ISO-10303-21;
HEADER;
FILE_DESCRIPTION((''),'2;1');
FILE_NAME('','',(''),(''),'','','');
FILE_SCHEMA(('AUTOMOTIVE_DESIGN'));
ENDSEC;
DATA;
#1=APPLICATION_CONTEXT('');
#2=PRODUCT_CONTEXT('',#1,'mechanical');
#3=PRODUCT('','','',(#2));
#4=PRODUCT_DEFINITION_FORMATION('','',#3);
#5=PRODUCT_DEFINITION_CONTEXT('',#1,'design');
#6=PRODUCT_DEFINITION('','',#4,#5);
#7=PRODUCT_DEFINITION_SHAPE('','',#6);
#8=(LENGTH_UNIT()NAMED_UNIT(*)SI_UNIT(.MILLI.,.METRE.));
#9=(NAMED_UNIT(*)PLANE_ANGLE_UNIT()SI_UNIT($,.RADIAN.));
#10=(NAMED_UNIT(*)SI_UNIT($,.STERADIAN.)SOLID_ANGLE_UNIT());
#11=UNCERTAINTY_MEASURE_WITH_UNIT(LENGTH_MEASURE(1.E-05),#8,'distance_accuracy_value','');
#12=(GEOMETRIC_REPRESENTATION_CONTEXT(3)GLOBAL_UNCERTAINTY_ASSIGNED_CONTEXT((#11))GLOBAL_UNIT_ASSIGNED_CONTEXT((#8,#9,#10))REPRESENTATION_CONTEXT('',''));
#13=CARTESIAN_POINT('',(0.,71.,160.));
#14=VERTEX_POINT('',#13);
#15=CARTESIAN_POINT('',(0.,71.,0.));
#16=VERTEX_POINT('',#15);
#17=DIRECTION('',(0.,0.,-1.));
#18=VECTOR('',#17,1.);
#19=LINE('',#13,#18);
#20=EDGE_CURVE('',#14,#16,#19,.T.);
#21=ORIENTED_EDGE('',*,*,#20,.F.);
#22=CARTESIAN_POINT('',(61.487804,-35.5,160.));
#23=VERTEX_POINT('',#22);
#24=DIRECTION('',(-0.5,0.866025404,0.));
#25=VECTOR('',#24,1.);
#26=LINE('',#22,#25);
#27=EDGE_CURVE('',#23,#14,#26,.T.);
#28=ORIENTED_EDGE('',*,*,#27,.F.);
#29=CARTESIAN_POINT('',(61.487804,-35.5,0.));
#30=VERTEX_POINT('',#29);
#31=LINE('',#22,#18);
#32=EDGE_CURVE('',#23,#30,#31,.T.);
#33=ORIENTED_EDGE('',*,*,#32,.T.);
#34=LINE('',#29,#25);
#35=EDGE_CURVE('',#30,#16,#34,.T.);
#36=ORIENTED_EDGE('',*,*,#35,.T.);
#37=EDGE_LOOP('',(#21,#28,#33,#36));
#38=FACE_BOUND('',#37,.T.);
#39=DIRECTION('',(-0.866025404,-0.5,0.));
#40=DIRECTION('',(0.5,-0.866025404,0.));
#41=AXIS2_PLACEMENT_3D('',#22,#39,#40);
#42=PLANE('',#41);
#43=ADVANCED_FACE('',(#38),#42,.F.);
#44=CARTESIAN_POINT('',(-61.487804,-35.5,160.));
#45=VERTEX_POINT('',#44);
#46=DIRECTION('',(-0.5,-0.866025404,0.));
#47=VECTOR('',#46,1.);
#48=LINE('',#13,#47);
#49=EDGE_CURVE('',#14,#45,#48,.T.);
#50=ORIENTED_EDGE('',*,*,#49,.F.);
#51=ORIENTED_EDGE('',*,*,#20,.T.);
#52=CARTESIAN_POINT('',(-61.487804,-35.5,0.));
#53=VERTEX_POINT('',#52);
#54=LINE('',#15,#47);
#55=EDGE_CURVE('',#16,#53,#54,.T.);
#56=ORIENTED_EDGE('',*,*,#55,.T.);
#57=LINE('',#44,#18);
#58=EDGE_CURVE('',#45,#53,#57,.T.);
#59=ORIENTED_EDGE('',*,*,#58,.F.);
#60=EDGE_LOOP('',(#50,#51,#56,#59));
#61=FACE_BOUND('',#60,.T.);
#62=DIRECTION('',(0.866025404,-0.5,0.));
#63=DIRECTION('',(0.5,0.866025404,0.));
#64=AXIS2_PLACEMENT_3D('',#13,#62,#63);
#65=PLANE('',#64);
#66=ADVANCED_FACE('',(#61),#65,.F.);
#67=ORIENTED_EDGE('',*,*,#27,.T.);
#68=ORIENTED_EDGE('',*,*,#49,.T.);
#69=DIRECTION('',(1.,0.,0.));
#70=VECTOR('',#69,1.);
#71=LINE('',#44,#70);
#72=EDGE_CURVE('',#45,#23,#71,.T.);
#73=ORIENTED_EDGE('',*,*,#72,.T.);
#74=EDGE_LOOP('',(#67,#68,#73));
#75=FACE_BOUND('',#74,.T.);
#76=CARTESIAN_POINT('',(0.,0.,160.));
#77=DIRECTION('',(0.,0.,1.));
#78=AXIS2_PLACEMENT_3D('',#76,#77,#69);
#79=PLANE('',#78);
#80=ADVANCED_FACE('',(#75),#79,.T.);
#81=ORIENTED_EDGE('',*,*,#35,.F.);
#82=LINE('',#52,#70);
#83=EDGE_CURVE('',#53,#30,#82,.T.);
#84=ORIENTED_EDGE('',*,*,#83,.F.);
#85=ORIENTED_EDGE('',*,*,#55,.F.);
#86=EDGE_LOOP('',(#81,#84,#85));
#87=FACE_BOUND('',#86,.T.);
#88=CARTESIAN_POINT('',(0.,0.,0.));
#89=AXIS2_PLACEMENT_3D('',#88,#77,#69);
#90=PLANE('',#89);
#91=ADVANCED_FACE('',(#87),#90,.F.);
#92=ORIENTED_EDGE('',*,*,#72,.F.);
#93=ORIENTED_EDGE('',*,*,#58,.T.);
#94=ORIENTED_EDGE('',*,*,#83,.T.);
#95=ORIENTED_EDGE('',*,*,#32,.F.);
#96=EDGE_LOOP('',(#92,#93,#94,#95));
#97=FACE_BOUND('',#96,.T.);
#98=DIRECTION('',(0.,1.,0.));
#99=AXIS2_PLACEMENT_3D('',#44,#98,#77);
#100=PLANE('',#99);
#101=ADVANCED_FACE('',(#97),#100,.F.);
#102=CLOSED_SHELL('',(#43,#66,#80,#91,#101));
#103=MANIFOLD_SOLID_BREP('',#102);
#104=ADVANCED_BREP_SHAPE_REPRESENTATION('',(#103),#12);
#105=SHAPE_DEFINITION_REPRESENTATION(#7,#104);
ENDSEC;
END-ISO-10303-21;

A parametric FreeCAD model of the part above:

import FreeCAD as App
import Part
import Sketcher

V = App.Vector
Q = App.Units.Quantity

doc = App.newDocument("Part")
body = doc.addObject("PartDesign::Body", "Body")

# Sketch on XY plane
sketch1 = body.newObject("Sketcher::SketchObject", "Sketch")
sketch1.AttachmentSupport = (doc.getObject("XY_Plane"), [""])
sketch1.MapMode = "FlatFace"
sketch1.addGeometry(Part.LineSegment(V(0, 71, 0), V(-61.487804, -35.5, 0)), False)
sketch1.addGeometry(Part.LineSegment(V(-61.487804, -35.5, 0), V(61.487804, -35.5, 0)), False)
sketch1.addGeometry(Part.LineSegment(V(61.487804, -35.5, 0), V(0, 71, 0)), False)
sketch1.addConstraint(Sketcher.Constraint("Coincident", 0, 2, 1, 1))
sketch1.addConstraint(Sketcher.Constraint("Coincident", 1, 2, 2, 1))
sketch1.addConstraint(Sketcher.Constraint("Coincident", 2, 2, 0, 1))
sketch1.addConstraint(Sketcher.Constraint("Horizontal", 1))
sketch1.addConstraint(Sketcher.Constraint("PointOnObject", 2, 2, -2))
sketch1.addConstraint(Sketcher.Constraint("Equal", 0, 2))
sketch1.addConstraint(Sketcher.Constraint("Angle", 0, Q("-120 deg")))
sketch1.addConstraint(Sketcher.Constraint("DistanceY", -1, 1, 2, 2, 71.0))
sketch1.addConstraint(Sketcher.Constraint("DistanceY", 0, 2, -1, 1, 35.5))
pad1 = body.newObject("PartDesign::Pad", "Pad")
pad1.Profile = sketch1
pad1.Length = 160

doc.recompute()
